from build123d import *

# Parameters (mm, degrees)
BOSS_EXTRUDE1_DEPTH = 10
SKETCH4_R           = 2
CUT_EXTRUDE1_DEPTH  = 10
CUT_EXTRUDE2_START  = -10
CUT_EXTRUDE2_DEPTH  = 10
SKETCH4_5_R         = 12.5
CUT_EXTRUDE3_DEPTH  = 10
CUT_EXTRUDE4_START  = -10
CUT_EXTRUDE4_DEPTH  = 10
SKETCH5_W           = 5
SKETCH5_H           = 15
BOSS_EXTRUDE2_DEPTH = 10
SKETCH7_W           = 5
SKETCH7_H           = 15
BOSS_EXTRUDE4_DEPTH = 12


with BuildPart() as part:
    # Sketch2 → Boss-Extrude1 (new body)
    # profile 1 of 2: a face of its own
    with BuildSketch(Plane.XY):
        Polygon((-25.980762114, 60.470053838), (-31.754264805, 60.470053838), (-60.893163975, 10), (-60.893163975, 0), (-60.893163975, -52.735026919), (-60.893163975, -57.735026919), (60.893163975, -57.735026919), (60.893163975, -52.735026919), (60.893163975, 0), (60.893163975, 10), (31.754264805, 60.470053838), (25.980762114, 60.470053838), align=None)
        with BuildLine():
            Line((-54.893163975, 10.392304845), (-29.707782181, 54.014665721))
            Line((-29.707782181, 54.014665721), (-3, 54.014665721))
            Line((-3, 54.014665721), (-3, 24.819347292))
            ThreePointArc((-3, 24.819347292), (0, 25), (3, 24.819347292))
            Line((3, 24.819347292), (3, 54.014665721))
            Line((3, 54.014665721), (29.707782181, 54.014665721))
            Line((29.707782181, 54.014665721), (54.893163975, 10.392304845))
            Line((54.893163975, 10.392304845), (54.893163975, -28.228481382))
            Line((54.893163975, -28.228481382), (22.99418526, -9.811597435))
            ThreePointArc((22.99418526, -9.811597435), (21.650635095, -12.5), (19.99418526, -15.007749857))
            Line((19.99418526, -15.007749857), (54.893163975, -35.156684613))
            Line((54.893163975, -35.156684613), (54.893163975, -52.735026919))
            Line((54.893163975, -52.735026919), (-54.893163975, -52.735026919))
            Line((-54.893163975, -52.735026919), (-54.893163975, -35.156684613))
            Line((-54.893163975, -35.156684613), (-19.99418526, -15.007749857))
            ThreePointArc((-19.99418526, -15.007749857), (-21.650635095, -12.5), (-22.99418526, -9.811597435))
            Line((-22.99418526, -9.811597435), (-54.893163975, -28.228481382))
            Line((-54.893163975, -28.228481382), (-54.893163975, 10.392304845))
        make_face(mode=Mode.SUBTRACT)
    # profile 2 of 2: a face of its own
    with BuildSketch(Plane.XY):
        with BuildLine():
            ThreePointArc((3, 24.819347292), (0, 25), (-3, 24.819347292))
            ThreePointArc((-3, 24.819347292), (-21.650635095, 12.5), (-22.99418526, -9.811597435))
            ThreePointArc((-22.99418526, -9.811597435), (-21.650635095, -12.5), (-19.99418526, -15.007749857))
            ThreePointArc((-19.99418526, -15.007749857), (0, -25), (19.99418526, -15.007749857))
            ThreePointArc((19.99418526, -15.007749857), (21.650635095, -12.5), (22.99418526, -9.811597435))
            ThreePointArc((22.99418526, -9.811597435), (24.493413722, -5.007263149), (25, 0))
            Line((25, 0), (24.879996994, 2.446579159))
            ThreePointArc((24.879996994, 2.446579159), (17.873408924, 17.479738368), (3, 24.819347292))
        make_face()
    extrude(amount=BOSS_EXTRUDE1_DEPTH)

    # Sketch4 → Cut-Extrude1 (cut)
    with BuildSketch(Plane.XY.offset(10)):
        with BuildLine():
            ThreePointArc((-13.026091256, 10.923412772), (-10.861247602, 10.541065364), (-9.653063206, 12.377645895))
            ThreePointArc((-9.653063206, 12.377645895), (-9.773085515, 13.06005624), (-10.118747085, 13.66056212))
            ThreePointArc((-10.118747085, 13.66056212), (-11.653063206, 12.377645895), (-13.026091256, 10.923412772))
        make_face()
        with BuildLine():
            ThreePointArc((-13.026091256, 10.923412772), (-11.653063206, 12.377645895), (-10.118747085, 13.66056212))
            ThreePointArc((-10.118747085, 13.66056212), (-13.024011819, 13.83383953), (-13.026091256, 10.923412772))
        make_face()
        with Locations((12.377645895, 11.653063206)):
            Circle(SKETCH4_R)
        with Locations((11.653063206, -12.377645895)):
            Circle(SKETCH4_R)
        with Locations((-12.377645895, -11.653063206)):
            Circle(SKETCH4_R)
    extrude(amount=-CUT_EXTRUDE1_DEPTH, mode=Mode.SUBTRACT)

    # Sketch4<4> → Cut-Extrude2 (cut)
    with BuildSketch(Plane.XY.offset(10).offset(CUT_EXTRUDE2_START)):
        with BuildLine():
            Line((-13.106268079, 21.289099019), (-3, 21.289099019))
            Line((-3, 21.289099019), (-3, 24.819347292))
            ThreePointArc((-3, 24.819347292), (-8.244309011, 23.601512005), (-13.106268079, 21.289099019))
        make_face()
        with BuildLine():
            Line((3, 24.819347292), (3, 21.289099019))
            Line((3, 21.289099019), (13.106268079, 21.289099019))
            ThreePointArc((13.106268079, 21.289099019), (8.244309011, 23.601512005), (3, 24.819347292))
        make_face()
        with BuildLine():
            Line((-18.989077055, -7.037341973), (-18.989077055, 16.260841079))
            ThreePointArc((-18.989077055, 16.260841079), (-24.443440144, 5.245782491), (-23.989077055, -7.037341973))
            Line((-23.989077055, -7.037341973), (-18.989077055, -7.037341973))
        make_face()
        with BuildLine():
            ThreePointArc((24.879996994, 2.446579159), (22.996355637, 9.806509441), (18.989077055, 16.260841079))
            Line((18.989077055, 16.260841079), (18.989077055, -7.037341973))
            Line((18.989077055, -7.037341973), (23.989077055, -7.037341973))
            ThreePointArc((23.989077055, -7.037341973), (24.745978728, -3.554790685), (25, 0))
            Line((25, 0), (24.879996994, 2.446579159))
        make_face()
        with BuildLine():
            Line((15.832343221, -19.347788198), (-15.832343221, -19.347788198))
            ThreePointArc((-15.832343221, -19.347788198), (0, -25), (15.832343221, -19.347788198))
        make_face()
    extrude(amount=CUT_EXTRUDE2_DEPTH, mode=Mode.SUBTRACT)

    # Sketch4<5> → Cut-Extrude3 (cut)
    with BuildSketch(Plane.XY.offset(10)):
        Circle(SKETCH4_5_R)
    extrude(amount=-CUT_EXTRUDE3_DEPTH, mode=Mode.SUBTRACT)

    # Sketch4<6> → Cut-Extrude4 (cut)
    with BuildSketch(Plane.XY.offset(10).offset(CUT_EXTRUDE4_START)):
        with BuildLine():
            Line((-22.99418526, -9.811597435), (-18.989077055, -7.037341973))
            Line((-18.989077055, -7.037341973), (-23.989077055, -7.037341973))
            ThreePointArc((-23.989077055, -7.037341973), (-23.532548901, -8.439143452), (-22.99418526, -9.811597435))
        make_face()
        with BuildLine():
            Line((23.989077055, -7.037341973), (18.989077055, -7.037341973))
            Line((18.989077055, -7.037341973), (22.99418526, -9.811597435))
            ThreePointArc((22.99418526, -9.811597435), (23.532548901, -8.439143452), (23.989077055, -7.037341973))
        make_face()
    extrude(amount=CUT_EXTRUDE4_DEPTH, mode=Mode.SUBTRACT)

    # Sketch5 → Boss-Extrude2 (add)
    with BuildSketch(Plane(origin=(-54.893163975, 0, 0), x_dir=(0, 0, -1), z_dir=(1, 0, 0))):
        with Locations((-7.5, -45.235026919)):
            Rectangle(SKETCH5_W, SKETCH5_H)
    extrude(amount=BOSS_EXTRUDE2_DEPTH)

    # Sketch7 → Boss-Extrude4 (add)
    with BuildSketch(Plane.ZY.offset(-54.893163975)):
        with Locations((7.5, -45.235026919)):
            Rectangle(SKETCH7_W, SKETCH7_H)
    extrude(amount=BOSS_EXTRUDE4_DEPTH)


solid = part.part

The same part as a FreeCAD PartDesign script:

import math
import FreeCAD as App
import Part
import Sketcher

V = App.Vector
Q = App.Units.Quantity

doc = App.newDocument("Part")
body = doc.addObject("PartDesign::Body", "Body")

# Sketch on XY plane
sketch1 = body.newObject("Sketcher::SketchObject", "Sketch")
sketch1.AttachmentSupport = (doc.getObject("XY_Plane"), [""])
sketch1.MapMode = "FlatFace"
sketch1.addGeometry(Part.LineSegment(V(-31.8, 60.5, 0), V(-60.9, 10, 0)), False)
sketch1.addGeometry(Part.LineSegment(V(-60.9, 10, 0), V(-60.9, -57.7, 0)), False)
sketch1.addGeometry(Part.LineSegment(V(-60.9, -57.7, 0), V(60.9, -57.7, 0)), False)
sketch1.addGeometry(Part.LineSegment(V(60.9, -57.7, 0), V(60.9, 10, 0)), False)
sketch1.addGeometry(Part.LineSegment(V(60.9, 10, 0), V(31.8, 60.5, 0)), False)
sketch1.addGeometry(Part.LineSegment(V(31.8, 60.5, 0), V(-31.8, 60.5, 0)), False)
sketch1.addGeometry(Part.LineSegment(V(-54.9, -28.2, 0), V(-54.9, 10.4, 0)), False)
sketch1.addGeometry(Part.LineSegment(V(-54.9, 10.4, 0), V(-29.7, 54, 0)), False)
sketch1.addGeometry(Part.LineSegment(V(-29.7, 54, 0), V(-3, 54, 0)), False)
sketch1.addGeometry(Part.LineSegment(V(-3, 54, 0), V(-3, 24.8, 0)), False)
sketch1.addGeometry(Part.ArcOfCircle(Part.Circle(V(0, 0, 0), V(0, 0, 1), 25), math.radians(97), math.radians(203)), False)
sketch1.addGeometry(Part.LineSegment(V(-23, -9.8, 0), V(-54.9, -28.2, 0)), False)
sketch1.addGeometry(Part.LineSegment(V(-54.9, -35.2, 0), V(-20, -15, 0)), False)
sketch1.addGeometry(Part.ArcOfCircle(Part.Circle(V(0, 0, 0), V(0, 0, 1), 25), math.radians(-143), math.radians(-37)), False)
sketch1.addGeometry(Part.LineSegment(V(20, -15, 0), V(54.9, -35.2, 0)), False)
sketch1.addGeometry(Part.LineSegment(V(54.9, -35.2, 0), V(54.9, -52.7, 0)), False)
sketch1.addGeometry(Part.LineSegment(V(54.9, -52.7, 0), V(-54.9, -52.7, 0)), False)
sketch1.addGeometry(Part.LineSegment(V(-54.9, -52.7, 0), V(-54.9, -35.2, 0)), False)
sketch1.addGeometry(Part.LineSegment(V(54.9, -28.2, 0), V(23, -9.8, 0)), False)
sketch1.addGeometry(Part.ArcOfCircle(Part.Circle(V(0, 0, 0), V(0, 0, 1), 25), math.radians(-23), math.radians(0)), False)
sketch1.addGeometry(Part.LineSegment(V(25, 0, 0), V(24.9, 2.4, 0)), False)
sketch1.addGeometry(Part.ArcOfCircle(Part.Circle(V(0, 0, 0), V(0, 0, 1), 25), math.radians(6), math.radians(83)), False)
sketch1.addGeometry(Part.LineSegment(V(3, 24.8, 0), V(3, 54, 0)), False)
sketch1.addGeometry(Part.LineSegment(V(3, 54, 0), V(29.7, 54, 0)), False)
sketch1.addGeometry(Part.LineSegment(V(29.7, 54, 0), V(54.9, 10.4, 0)), False)
sketch1.addGeometry(Part.LineSegment(V(54.9, 10.4, 0), V(54.9, -28.2, 0)), False)
sketch1.addConstraint(Sketcher.Constraint("Coincident", 0, 2, 1, 1))
sketch1.addConstraint(Sketcher.Constraint("Coincident", 1, 2, 2, 1))
sketch1.addConstraint(Sketcher.Constraint("Coincident", 2, 2, 3, 1))
sketch1.addConstraint(Sketcher.Constraint("Coincident", 3, 2, 4, 1))
sketch1.addConstraint(Sketcher.Constraint("Coincident", 4, 2, 5, 1))
sketch1.addConstraint(Sketcher.Constraint("Coincident", 5, 2, 0, 1))
sketch1.addConstraint(Sketcher.Constraint("Coincident", 6, 2, 7, 1))
sketch1.addConstraint(Sketcher.Constraint("Coincident", 7, 2, 8, 1))
sketch1.addConstraint(Sketcher.Constraint("Coincident", 8, 2, 9, 1))
sketch1.addConstraint(Sketcher.Constraint("Coincident", 9, 2, 10, 1))
sketch1.addConstraint(Sketcher.Constraint("Coincident", 10, 2, 11, 1))
sketch1.addConstraint(Sketcher.Constraint("Coincident", 11, 2, 6, 1))
sketch1.addConstraint(Sketcher.Constraint("Coincident", 12, 2, 13, 1))
sketch1.addConstraint(Sketcher.Constraint("Coincident", 13, 2, 14, 1))
sketch1.addConstraint(Sketcher.Constraint("Coincident", 14, 2, 15, 1))
sketch1.addConstraint(Sketcher.Constraint("Coincident", 15, 2, 16, 1))
sketch1.addConstraint(Sketcher.Constraint("Coincident", 16, 2, 17, 1))
sketch1.addConstraint(Sketcher.Constraint("Coincident", 17, 2, 12, 1))
sketch1.addConstraint(Sketcher.Constraint("Coincident", 18, 2, 19, 1))
sketch1.addConstraint(Sketcher.Constraint("Coincident", 19, 2, 20, 1))
sketch1.addConstraint(Sketcher.Constraint("Coincident", 20, 2, 21, 1))
sketch1.addConstraint(Sketcher.Constraint("Coincident", 21, 2, 22, 1))
sketch1.addConstraint(Sketcher.Constraint("Coincident", 22, 2, 23, 1))
sketch1.addConstraint(Sketcher.Constraint("Coincident", 23, 2, 24, 1))
sketch1.addConstraint(Sketcher.Constraint("Coincident", 24, 2, 25, 1))
sketch1.addConstraint(Sketcher.Constraint("Coincident", 25, 2, 18, 1))
sketch1.addConstraint(Sketcher.Constraint("Vertical", 1))
sketch1.addConstraint(Sketcher.Constraint("Horizontal", 2))
sketch1.addConstraint(Sketcher.Constraint("Vertical", 3))
sketch1.addConstraint(Sketcher.Constraint("Horizontal", 5))
sketch1.addConstraint(Sketcher.Constraint("Vertical", 6))
sketch1.addConstraint(Sketcher.Constraint("Horizontal", 8))
sketch1.addConstraint(Sketcher.Constraint("Vertical", 9))
sketch1.addConstraint(Sketcher.Constraint("Vertical", 15))
sketch1.addConstraint(Sketcher.Constraint("Horizontal", 16))
sketch1.addConstraint(Sketcher.Constraint("Vertical", 17))
sketch1.addConstraint(Sketcher.Constraint("Vertical", 22))
sketch1.addConstraint(Sketcher.Constraint("Horizontal", 23))
sketch1.addConstraint(Sketcher.Constraint("Vertical", 25))
sketch1.addConstraint(Sketcher.Constraint("Coincident", 10, 3, -1, 1))
sketch1.addConstraint(Sketcher.Constraint("Coincident", 13, 3, -1, 1))
sketch1.addConstraint(Sketcher.Constraint("Coincident", 19, 3, -1, 1))
sketch1.addConstraint(Sketcher.Constraint("Coincident", 21, 3, -1, 1))
sketch1.addConstraint(Sketcher.Constraint("Equal", 10, 13))
sketch1.addConstraint(Sketcher.Constraint("Equal", 13, 19))
sketch1.addConstraint(Sketcher.Constraint("Equal", 19, 21))
sketch1.addConstraint(Sketcher.Constraint("Symmetric", 0, 2, 3, 2, -2))
sketch1.addConstraint(Sketcher.Constraint("Symmetric", 14, 2, 17, 2, -2))
sketch1.addConstraint(Sketcher.Constraint("Symmetric", 8, 2, 22, 2, -2))
sketch1.addConstraint(Sketcher.Constraint("Symmetric", 6, 2, 24, 2, -2))
sketch1.addConstraint(Sketcher.Constraint("PointOnObject", 19, 2, -1))
sketch1.addConstraint(Sketcher.Constraint("Parallel", 0, 7))
sketch1.addConstraint(Sketcher.Constraint("Perpendicular", 4, 11))
sketch1.addConstraint(Sketcher.Constraint("Parallel", 11, 12))
sketch1.addConstraint(Sketcher.Constraint("Perpendicular", 7, 14))
sketch1.addConstraint(Sketcher.Constraint("Parallel", 14, 18))
sketch1.addConstraint(Sketcher.Constraint("Perpendicular", 12, 24))
sketch1.addConstraint(Sketcher.Constraint("Horizontal", 12, 2, 13, 2))
sketch1.addConstraint(Sketcher.Constraint("Horizontal", 10, 2, 18, 2))
sketch1.addConstraint(Sketcher.Constraint("Vertical", 11, 2, 16, 2))
sketch1.addConstraint(Sketcher.Constraint("Radius", 10, Q("25 mm")))
sketch1.addConstraint(Sketcher.Constraint("Angle", 0, Q("-120 deg")))
sketch1.addConstraint(Sketcher.Constraint("DistanceY", -1, 1, 0, 2, Q("10 mm")))
sketch1.addConstraint(Sketcher.Constraint("DistanceX", 8, 2, -1, 1, Q("3 mm")))
sketch1.addConstraint(Sketcher.Constraint("DistanceX", 0, 2, 6, 2, Q("6 mm")))
sketch1.addConstraint(Sketcher.Constraint("DistanceX", 10, 2, 12, 2, Q("3 mm")))
sketch1.addConstraint(Sketcher.Constraint("DistanceY", 2, 2, 15, 2, Q("5 mm")))
sketch1.addConstraint(Sketcher.Constraint("Distance", 0, Q("58.277798 mm")))
sketch1.addConstraint(Sketcher.Constraint("DistanceX", 5, 2, 5, 1, Q("63.50853 mm")))
sketch1.addConstraint(Sketcher.Constraint("DistanceY", 9, 2, 9, 1, Q("29.195318 mm")))
sketch1.addConstraint(Sketcher.Constraint("Distance", 12, Q("40.29787 mm")))
sketch1.addConstraint(Sketcher.Constraint("Distance", 20, Q("2.44952 mm")))
sketch1.addConstraint(Sketcher.Constraint("DistanceX", 8, 1, 8, 2, Q("26.707782 mm")))
sketch1.addConstraint(Sketcher.Constraint("DistanceY", 1, 2, 1, 1, Q("67.735027 mm")))
pad1 = body.newObject("PartDesign::Pad", "Pad")
pad1.Profile = sketch1
pad1.Length = 10

# Sketch on XY plane
sketch2 = body.newObject("Sketcher::SketchObject", "Sketch001")
sketch2.AttachmentSupport = (doc.getObject("XY_Plane"), [""])
sketch2.MapMode = "FlatFace"
sketch2.AttachmentOffset = App.Placement(V(0, 0, 10), App.Rotation())
sketch2.addGeometry(Part.ArcOfCircle(Part.Circle(V(-11.7, 12.4, 0), V(0, 0, 1), 2), math.radians(-133), math.radians(0)), False)
sketch2.addGeometry(Part.ArcOfCircle(Part.Circle(V(-11.7, 12.4, 0), V(0, 0, 1), 2), math.radians(0), math.radians(40)), False)
sketch2.addGeometry(Part.ArcOfCircle(Part.Circle(V(-11.7, 12.4, 0), V(0, 0, 1), 2), math.radians(40), math.radians(227)), False)
sketch2.addGeometry(Part.Circle(V(12.4, 11.7, 0), V(0, 0, 1), 2), False)
sketch2.addGeometry(Part.Circle(V(11.7, -12.4, 0), V(0, 0, 1), 2), False)
sketch2.addGeometry(Part.Circle(V(-12.4, -11.7, 0), V(0, 0, 1), 2), False)
sketch2.addConstraint(Sketcher.Constraint("Tangent", 0, 2, 1, 1))
sketch2.addConstraint(Sketcher.Constraint("Tangent", 1, 2, 2, 1))
sketch2.addConstraint(Sketcher.Constraint("Tangent", 2, 2, 0, 1))
sketch2.addConstraint(Sketcher.Constraint("Equal", 2, 3))
sketch2.addConstraint(Sketcher.Constraint("Equal", 3, 4))
sketch2.addConstraint(Sketcher.Constraint("Equal", 4, 5))
sketch2.addConstraint(Sketcher.Constraint("Symmetric", 0, 3, 4, 3, -1, 1))
sketch2.addConstraint(Sketcher.Constraint("Symmetric", 3, 3, 5, 3, -1, 1))
sketch2.addConstraint(Sketcher.Constraint("Horizontal", 2, 3, 0, 2))
sketch2.addConstraint(Sketcher.Constraint("Diameter", 3, Q("4 mm")))
sketch2.addConstraint(Sketcher.Constraint("DistanceY", 3, 3, 1, 2, Q("2.007499 mm")))
sketch2.addConstraint(Sketcher.Constraint("DistanceX", 2, 2, -1, 1, Q("13.026091 mm")))
sketch2.addConstraint(Sketcher.Constraint("DistanceX", 2, 3, 3, 3, Q("24.030709 mm")))
sketch2.addConstraint(Sketcher.Constraint("DistanceY", 4, 3, 3, 3, Q("24.030709 mm")))
sketch2.addConstraint(Sketcher.Constraint("DistanceY", 4, 3, 2, 3, Q("24.755292 mm")))
sketch2.addConstraint(Sketcher.Constraint("DistanceX", 5, 3, 3, 3, Q("24.755292 mm")))
pocket1 = body.newObject("PartDesign::Pocket", "Pocket")
pocket1.Profile = sketch2
pocket1.Length = 10

# Sketch on XY plane
sketch3 = body.newObject("Sketcher::SketchObject", "Sketch002")
sketch3.AttachmentSupport = (doc.getObject("XY_Plane"), [""])
sketch3.MapMode = "FlatFace"
sketch3.addGeometry(Part.LineSegment(V(-13.1, 21.3, 0), V(-3, 21.3, 0)), False)
sketch3.addGeometry(Part.LineSegment(V(-3, 21.3, 0), V(-3, 24.8, 0)), False)
sketch3.addGeometry(Part.ArcOfCircle(Part.Circle(V(0, 0, 0), V(0, 0, 1), 25), math.radians(97), math.radians(122)), False)
sketch3.addGeometry(Part.LineSegment(V(3, 24.8, 0), V(3, 21.3, 0)), False)
sketch3.addGeometry(Part.LineSegment(V(3, 21.3, 0), V(13.1, 21.3, 0)), False)
sketch3.addGeometry(Part.ArcOfCircle(Part.Circle(V(0, 0, 0), V(0, 0, 1), 25), math.radians(58), math.radians(83)), False)
sketch3.addGeometry(Part.LineSegment(V(-19, -7, 0), V(-19, 16.3, 0)), False)
sketch3.addGeometry(Part.ArcOfCircle(Part.Circle(V(0, 0, 0), V(0, 0, 1), 25), math.radians(139), math.radians(196)), False)
sketch3.addGeometry(Part.LineSegment(V(-24, -7, 0), V(-19, -7, 0)), False)
sketch3.addGeometry(Part.ArcOfCircle(Part.Circle(V(0, 0, 0), V(0, 0, 1), 25), math.radians(6), math.radians(41)), False)
sketch3.addGeometry(Part.LineSegment(V(19, 16.3, 0), V(19, -7, 0)), False)
sketch3.addGeometry(Part.LineSegment(V(19, -7, 0), V(24, -7, 0)), False)
sketch3.addGeometry(Part.ArcOfCircle(Part.Circle(V(0, 0, 0), V(0, 0, 1), 25), math.radians(-16.35), math.radians(0)), False)
sketch3.addGeometry(Part.LineSegment(V(25, 0, 0), V(24.9, 2.4, 0)), False)
sketch3.addGeometry(Part.LineSegment(V(15.8, -19.3, 0), V(-15.8, -19.3, 0)), False)
sketch3.addGeometry(Part.ArcOfCircle(Part.Circle(V(0, 0, 0), V(0, 0, 1), 25), math.radians(-129), math.radians(-51)), False)
sketch3.addConstraint(Sketcher.Constraint("Coincident", 0, 2, 1, 1))
sketch3.addConstraint(Sketcher.Constraint("Coincident", 1, 2, 2, 1))
sketch3.addConstraint(Sketcher.Constraint("Coincident", 2, 2, 0, 1))
sketch3.addConstraint(Sketcher.Constraint("Coincident", 3, 2, 4, 1))
sketch3.addConstraint(Sketcher.Constraint("Coincident", 4, 2, 5, 1))
sketch3.addConstraint(Sketcher.Constraint("Coincident", 5, 2, 3, 1))
sketch3.addConstraint(Sketcher.Constraint("Coincident", 6, 2, 7, 1))
sketch3.addConstraint(Sketcher.Constraint("Coincident", 7, 2, 8, 1))
sketch3.addConstraint(Sketcher.Constraint("Coincident", 8, 2, 6, 1))
sketch3.addConstraint(Sketcher.Constraint("Coincident", 9, 2, 10, 1))
sketch3.addConstraint(Sketcher.Constraint("Coincident", 10, 2, 11, 1))
sketch3.addConstraint(Sketcher.Constraint("Coincident", 11, 2, 12, 1))
sketch3.addConstraint(Sketcher.Constraint("Coincident", 12, 2, 13, 1))
sketch3.addConstraint(Sketcher.Constraint("Coincident", 13, 2, 9, 1))
sketch3.addConstraint(Sketcher.Constraint("Coincident", 14, 1, 15, 2))
sketch3.addConstraint(Sketcher.Constraint("Coincident", 15, 1, 14, 2))
sketch3.addConstraint(Sketcher.Constraint("Horizontal", 0))
sketch3.addConstraint(Sketcher.Constraint("Vertical", 1))
sketch3.addConstraint(Sketcher.Constraint("Vertical", 3))
sketch3.addConstraint(Sketcher.Constraint("Horizontal", 4))
sketch3.addConstraint(Sketcher.Constraint("Vertical", 6))
sketch3.addConstraint(Sketcher.Constraint("Horizontal", 8))
sketch3.addConstraint(Sketcher.Constraint("Vertical", 10))
sketch3.addConstraint(Sketcher.Constraint("Horizontal", 11))
sketch3.addConstraint(Sketcher.Constraint("Horizontal", 14))
sketch3.addConstraint(Sketcher.Constraint("Coincident", 2, 3, -1, 1))
sketch3.addConstraint(Sketcher.Constraint("Coincident", 5, 3, -1, 1))
sketch3.addConstraint(Sketcher.Constraint("Coincident", 7, 3, -1, 1))
sketch3.addConstraint(Sketcher.Constraint("Coincident", 9, 3, -1, 1))
sketch3.addConstraint(Sketcher.Constraint("Coincident", 12, 3, -1, 1))
sketch3.addConstraint(Sketcher.Constraint("Coincident", 15, 3, -1, 1))
sketch3.addConstraint(Sketcher.Constraint("Equal", 2, 5))
sketch3.addConstraint(Sketcher.Constraint("Equal", 5, 7))
sketch3.addConstraint(Sketcher.Constraint("Equal", 7, 9))
sketch3.addConstraint(Sketcher.Constraint("Equal", 9, 12))
sketch3.addConstraint(Sketcher.Constraint("Equal", 12, 15))
sketch3.addConstraint(Sketcher.Constraint("Symmetric", 0, 2, 3, 2, -2))
sketch3.addConstraint(Sketcher.Constraint("Symmetric", 8, 2, 10, 2, -2))
sketch3.addConstraint(Sketcher.Constraint("PointOnObject", 12, 2, -1))
sketch3.addConstraint(Sketcher.Constraint("Radius", 2, Q("25 mm")))
sketch3.addConstraint(Sketcher.Constraint("DistanceX", 8, 1, 8, 2, Q("5 mm")))
sketch3.addConstraint(Sketcher.Constraint("DistanceX", 0, 2, -1, 1, Q("3 mm")))
sketch3.addConstraint(Sketcher.Constraint("DistanceX", 0, 1, 0, 2, Q("10.106268 mm")))
sketch3.addConstraint(Sketcher.Constraint("Distance", 13, Q("2.44952 mm")))
sketch3.addConstraint(Sketcher.Constraint("DistanceX", 14, 2, 14, 1, Q("31.664686 mm")))
sketch3.addConstraint(Sketcher.Constraint("DistanceY", 6, 1, 6, 2, Q("23.298183 mm")))
pocket2 = body.newObject("PartDesign::Pocket", "Pocket001")
pocket2.Profile = sketch3
pocket2.Length = 10
pocket2.Reversed = True

# Sketch on XY plane
sketch4 = body.newObject("Sketcher::SketchObject", "Sketch003")
sketch4.AttachmentSupport = (doc.getObject("XY_Plane"), [""])
sketch4.MapMode = "FlatFace"
sketch4.AttachmentOffset = App.Placement(V(0, 0, 10), App.Rotation())
sketch4.addGeometry(Part.Circle(V(0, 0, 0), V(0, 0, 1), 12), False)
sketch4.addConstraint(Sketcher.Constraint("Coincident", 0, 3, -1, 1))
sketch4.addConstraint(Sketcher.Constraint("Diameter", 0, Q("25 mm")))
pocket3 = body.newObject("PartDesign::Pocket", "Pocket002")
pocket3.Profile = sketch4
pocket3.Length = 10

# Sketch on XY plane
sketch5 = body.newObject("Sketcher::SketchObject", "Sketch004")
sketch5.AttachmentSupport = (doc.getObject("XY_Plane"), [""])
sketch5.MapMode = "FlatFace"
sketch5.addGeometry(Part.LineSegment(V(-23, -9.8, 0), V(-19, -7, 0)), False)
sketch5.addGeometry(Part.LineSegment(V(-19, -7, 0), V(-24, -7, 0)), False)
sketch5.addGeometry(Part.ArcOfCircle(Part.Circle(V(0, 0, 0), V(0, 0, 1), 25), math.radians(-163.65), math.radians(-156.89)), False)
sketch5.addGeometry(Part.LineSegment(V(24, -7, 0), V(19, -7, 0)), False)
sketch5.addGeometry(Part.LineSegment(V(19, -7, 0), V(23, -9.8, 0)), False)
sketch5.addGeometry(Part.ArcOfCircle(Part.Circle(V(0, 0, 0), V(0, 0, 1), 25), math.radians(-23.11), math.radians(-16.35)), False)
sketch5.addConstraint(Sketcher.Constraint("Coincident", 0, 2, 1, 1))
sketch5.addConstraint(Sketcher.Constraint("Coincident", 1, 2, 2, 1))
sketch5.addConstraint(Sketcher.Constraint("Coincident", 2, 2, 0, 1))
sketch5.addConstraint(Sketcher.Constraint("Coincident", 3, 2, 4, 1))
sketch5.addConstraint(Sketcher.Constraint("Coincident", 4, 2, 5, 1))
sketch5.addConstraint(Sketcher.Constraint("Coincident", 5, 2, 3, 1))
sketch5.addConstraint(Sketcher.Constraint("Horizontal", 1))
sketch5.addConstraint(Sketcher.Constraint("Horizontal", 3))
sketch5.addConstraint(Sketcher.Constraint("Coincident", 2, 3, -1, 1))
sketch5.addConstraint(Sketcher.Constraint("Coincident", 5, 3, -1, 1))
sketch5.addConstraint(Sketcher.Constraint("Equal", 2, 5))
sketch5.addConstraint(Sketcher.Constraint("Symmetric", 0, 2, 3, 2, -2))
sketch5.addConstraint(Sketcher.Constraint("Horizontal", 2, 2, 4, 2))
sketch5.addConstraint(Sketcher.Constraint("Radius", 2, Q("25 mm")))
sketch5.addConstraint(Sketcher.Constraint("DistanceX", 1, 2, 1, 1, Q("5 mm")))
sketch5.addConstraint(Sketcher.Constraint("DistanceY", 0, 2, -1, 1, Q("7.037342 mm")))
sketch5.addConstraint(Sketcher.Constraint("DistanceX", 1, 2, 2, 2, Q("0.994892 mm")))
pocket4 = body.newObject("PartDesign::Pocket", "Pocket003")
pocket4.Profile = sketch5
pocket4.Length = 10
pocket4.Reversed = True

# Sketch on YZ plane
sketch6 = body.newObject("Sketcher::SketchObject", "Sketch005")
sketch6.AttachmentSupport = (doc.getObject("YZ_Plane"), [""])
sketch6.MapMode = "FlatFace"
sketch6.AttachmentOffset = App.Placement(V(0, 0, -54.893164), App.Rotation())
sketch6.addGeometry(Part.LineSegment(V(-38, 10, 0), V(-53, 10, 0)), False)
sketch6.addGeometry(Part.LineSegment(V(-53, 10, 0), V(-53, 5, 0)), False)
sketch6.addGeometry(Part.LineSegment(V(-53, 5, 0), V(-38, 5, 0)), False)
sketch6.addGeometry(Part.LineSegment(V(-38, 5, 0), V(-38, 10, 0)), False)
sketch6.addConstraint(Sketcher.Constraint("Coincident", 0, 2, 1, 1))
sketch6.addConstraint(Sketcher.Constraint("Coincident", 1, 2, 2, 1))
sketch6.addConstraint(Sketcher.Constraint("Coincident", 2, 2, 3, 1))
sketch6.addConstraint(Sketcher.Constraint("Coincident", 3, 2, 0, 1))
sketch6.addConstraint(Sketcher.Constraint("Horizontal", 0))
sketch6.addConstraint(Sketcher.Constraint("Vertical", 1))
sketch6.addConstraint(Sketcher.Constraint("Horizontal", 2))
sketch6.addConstraint(Sketcher.Constraint("Vertical", 3))
sketch6.addConstraint(Sketcher.Constraint("DistanceX", 0, 2, 0, 1, Q("15 mm")))
sketch6.addConstraint(Sketcher.Constraint("DistanceY", 1, 2, 1, 1, Q("5 mm")))
sketch6.addConstraint(Sketcher.Constraint("DistanceY", -1, 1, 0, 2, Q("10 mm")))
sketch6.addConstraint(Sketcher.Constraint("DistanceX", 0, 2, -1, 1, Q("52.735027 mm")))
pad2 = body.newObject("PartDesign::Pad", "Pad001")
pad2.Profile = sketch6
pad2.Length = 10

# Sketch on YZ plane
sketch7 = body.newObject("Sketcher::SketchObject", "Sketch006")
sketch7.AttachmentSupport = (doc.getObject("YZ_Plane"), [""])
sketch7.MapMode = "FlatFace"
sketch7.AttachmentOffset = App.Placement(V(0, 0, 54.893164), App.Rotation())
sketch7.addGeometry(Part.LineSegment(V(-38, 5, 0), V(-53, 5, 0)), False)
sketch7.addGeometry(Part.LineSegment(V(-53, 5, 0), V(-53, 10, 0)), False)
sketch7.addGeometry(Part.LineSegment(V(-53, 10, 0), V(-38, 10, 0)), False)
sketch7.addGeometry(Part.LineSegment(V(-38, 10, 0), V(-38, 5, 0)), False)
sketch7.addConstraint(Sketcher.Constraint("Coincident", 0, 2, 1, 1))
sketch7.addConstraint(Sketcher.Constraint("Coincident", 1, 2, 2, 1))
sketch7.addConstraint(Sketcher.Constraint("Coincident", 2, 2, 3, 1))
sketch7.addConstraint(Sketcher.Constraint("Coincident", 3, 2, 0, 1))
sketch7.addConstraint(Sketcher.Constraint("Horizontal", 0))
sketch7.addConstraint(Sketcher.Constraint("Vertical", 1))
sketch7.addConstraint(Sketcher.Constraint("Horizontal", 2))
sketch7.addConstraint(Sketcher.Constraint("Vertical", 3))
sketch7.addConstraint(Sketcher.Constraint("DistanceX", 0, 2, 0, 1, Q("15 mm")))
sketch7.addConstraint(Sketcher.Constraint("DistanceY", 1, 1, 1, 2, Q("5 mm")))
sketch7.addConstraint(Sketcher.Constraint("DistanceY", -1, 1, 0, 2, Q("5 mm")))
sketch7.addConstraint(Sketcher.Constraint("DistanceX", 0, 2, -1, 1, Q("52.735027 mm")))
pad3 = body.newObject("PartDesign::Pad", "Pad002")
pad3.Profile = sketch7
pad3.Length = 12
pad3.Reversed = True

doc.recompute()
